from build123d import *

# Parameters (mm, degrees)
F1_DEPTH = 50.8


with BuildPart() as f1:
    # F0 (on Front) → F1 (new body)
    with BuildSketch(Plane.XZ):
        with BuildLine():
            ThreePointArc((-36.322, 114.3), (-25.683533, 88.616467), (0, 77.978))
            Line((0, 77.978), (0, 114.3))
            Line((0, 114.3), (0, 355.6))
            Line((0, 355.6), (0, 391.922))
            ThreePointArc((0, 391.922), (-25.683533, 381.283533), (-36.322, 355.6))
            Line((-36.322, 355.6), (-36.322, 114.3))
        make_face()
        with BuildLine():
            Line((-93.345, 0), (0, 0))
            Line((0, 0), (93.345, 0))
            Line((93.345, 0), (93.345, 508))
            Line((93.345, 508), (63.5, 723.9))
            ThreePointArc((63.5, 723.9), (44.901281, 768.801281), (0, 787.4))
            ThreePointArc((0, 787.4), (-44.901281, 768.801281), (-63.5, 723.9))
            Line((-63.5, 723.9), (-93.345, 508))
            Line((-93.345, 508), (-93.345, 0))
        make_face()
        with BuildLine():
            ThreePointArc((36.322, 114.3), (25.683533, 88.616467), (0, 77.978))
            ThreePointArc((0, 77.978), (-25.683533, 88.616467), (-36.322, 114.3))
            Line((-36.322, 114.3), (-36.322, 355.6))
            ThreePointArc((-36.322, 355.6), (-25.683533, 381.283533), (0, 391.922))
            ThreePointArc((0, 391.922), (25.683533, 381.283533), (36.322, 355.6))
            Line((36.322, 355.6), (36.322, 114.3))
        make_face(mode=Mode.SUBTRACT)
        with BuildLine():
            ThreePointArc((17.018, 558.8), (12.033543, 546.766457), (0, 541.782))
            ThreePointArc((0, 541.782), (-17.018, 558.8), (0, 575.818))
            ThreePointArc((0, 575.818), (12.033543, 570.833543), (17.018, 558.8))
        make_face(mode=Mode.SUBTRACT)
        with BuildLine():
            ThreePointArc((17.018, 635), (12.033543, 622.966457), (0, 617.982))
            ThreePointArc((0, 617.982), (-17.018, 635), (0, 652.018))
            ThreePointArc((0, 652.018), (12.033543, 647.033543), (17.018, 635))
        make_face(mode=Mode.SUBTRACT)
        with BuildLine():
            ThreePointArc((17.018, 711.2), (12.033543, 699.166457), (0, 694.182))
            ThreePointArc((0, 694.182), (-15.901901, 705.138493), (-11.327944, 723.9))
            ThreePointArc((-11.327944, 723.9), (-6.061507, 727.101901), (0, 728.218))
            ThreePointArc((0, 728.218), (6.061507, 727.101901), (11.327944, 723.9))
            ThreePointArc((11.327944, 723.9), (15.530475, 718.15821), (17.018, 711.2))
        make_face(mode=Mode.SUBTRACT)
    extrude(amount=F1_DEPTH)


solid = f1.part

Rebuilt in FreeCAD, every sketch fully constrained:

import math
import FreeCAD as App
import Part
import Sketcher

V = App.Vector
Q = App.Units.Quantity

doc = App.newDocument("Part")
body = doc.addObject("PartDesign::Body", "Body")

sketch1 = body.newObject("Sketcher::SketchObject", "Sketch")
sketch1.AttachmentSupport = (doc.getObject("XZ_Plane"), [""])
sketch1.MapMode = "FlatFace"
sketch1.addGeometry([
    Part.LineSegment(V(-93, 0, 0), V(93, 0, 0)),
    Part.LineSegment(V(93, 0, 0), V(93, 508, 0)),
    Part.LineSegment(V(93, 508, 0), V(64, 724, 0)),
    Part.ArcOfCircle(Part.Circle(V(0, 724, 0), V(0, 0, 1), 63), math.radians(0), math.radians(90)),
    Part.ArcOfCircle(Part.Circle(V(0, 724, 0), V(0, 0, 1), 63), math.radians(90), math.radians(180)),
    Part.LineSegment(V(-64, 724, 0), V(-93, 508, 0)),
    Part.LineSegment(V(-93, 508, 0), V(-93, 0, 0)),
    Part.LineSegment(V(36, 356, 0), V(36, 114, 0)),
    Part.ArcOfCircle(Part.Circle(V(0, 114, 0), V(0, 0, 1), 36), math.radians(-90), math.radians(0)),
    Part.ArcOfCircle(Part.Circle(V(0, 114, 0), V(0, 0, 1), 36), math.radians(180), math.radians(270)),
    Part.LineSegment(V(-36, 114, 0), V(-36, 356, 0)),
    Part.ArcOfCircle(Part.Circle(V(0, 356, 0), V(0, 0, 1), 36), math.radians(90), math.radians(180)),
    Part.ArcOfCircle(Part.Circle(V(0, 356, 0), V(0, 0, 1), 36), math.radians(0), math.radians(90)),
    Part.ArcOfCircle(Part.Circle(V(0, 559, 0), V(0, 0, 1), 17), math.radians(0), math.radians(90)),
    Part.ArcOfCircle(Part.Circle(V(0, 559, 0), V(0, 0, 1), 17), math.radians(-90), math.radians(0)),
    Part.ArcOfCircle(Part.Circle(V(0, 559, 0), V(0, 0, 1), 17), math.radians(90), math.radians(270)),
    Part.ArcOfCircle(Part.Circle(V(0, 635, 0), V(0, 0, 1), 17), math.radians(0), math.radians(90)),
    Part.ArcOfCircle(Part.Circle(V(0, 635, 0), V(0, 0, 1), 17), math.radians(-90), math.radians(0)),
    Part.ArcOfCircle(Part.Circle(V(0, 635, 0), V(0, 0, 1), 17), math.radians(90), math.radians(270)),
    Part.ArcOfCircle(Part.Circle(V(0, 711, 0), V(0, 0, 1), 17), math.radians(0), math.radians(48)),
    Part.ArcOfCircle(Part.Circle(V(0, 711, 0), V(0, 0, 1), 17), math.radians(-90), math.radians(0)),
    Part.ArcOfCircle(Part.Circle(V(0, 711, 0), V(0, 0, 1), 17), math.radians(132), math.radians(270)),
    Part.ArcOfCircle(Part.Circle(V(0, 711, 0), V(0, 0, 1), 17), math.radians(90), math.radians(132)),
    Part.ArcOfCircle(Part.Circle(V(0, 711, 0), V(0, 0, 1), 17), math.radians(48), math.radians(90)),
], False)
sketch1.addConstraint([
    Sketcher.Constraint("Coincident", 0, 2, 1, 1),
    Sketcher.Constraint("Coincident", 1, 2, 2, 1),
    Sketcher.Constraint("Coincident", 2, 2, 3, 1),
    Sketcher.Constraint("Tangent", 3, 2, 4, 1),
    Sketcher.Constraint("Coincident", 4, 2, 5, 1),
    Sketcher.Constraint("Coincident", 5, 2, 6, 1),
    Sketcher.Constraint("Coincident", 6, 2, 0, 1),
    Sketcher.Constraint("Tangent", 7, 2, 8, 2),
    Sketcher.Constraint("Tangent", 8, 1, 9, 2),
    Sketcher.Constraint("Tangent", 9, 1, 10, 1),
    Sketcher.Constraint("Tangent", 10, 2, 11, 2),
    Sketcher.Constraint("Tangent", 11, 1, 12, 2),
    Sketcher.Constraint("Tangent", 12, 1, 7, 1),
    Sketcher.Constraint("Tangent", 13, 1, 14, 2),
    Sketcher.Constraint("Tangent", 14, 1, 15, 2),
    Sketcher.Constraint("Tangent", 15, 1, 13, 2),
    Sketcher.Constraint("Tangent", 16, 1, 17, 2),
    Sketcher.Constraint("Tangent", 17, 1, 18, 2),
    Sketcher.Constraint("Tangent", 18, 1, 16, 2),
    Sketcher.Constraint("Tangent", 19, 1, 20, 2),
    Sketcher.Constraint("Tangent", 20, 1, 21, 2),
    Sketcher.Constraint("Tangent", 21, 1, 22, 2),
    Sketcher.Constraint("Tangent", 22, 1, 23, 2),
    Sketcher.Constraint("Tangent", 23, 1, 19, 2),
    Sketcher.Constraint("Horizontal", 0),
    Sketcher.Constraint("Vertical", 1),
    Sketcher.Constraint("Vertical", 6),
    Sketcher.Constraint("Vertical", 7),
    Sketcher.Constraint("Vertical", 10),
    Sketcher.Constraint("Coincident", 21, 3, 19, 3),
    Sketcher.Constraint("Equal", 3, 4),
    Sketcher.Constraint("Equal", 8, 9),
    Sketcher.Constraint("Equal", 9, 11),
    Sketcher.Constraint("Equal", 15, 16),
    Sketcher.Constraint("Equal", 18, 20),
    Sketcher.Constraint("Symmetric", 0, 2, 6, 2, -1, 1),
    Sketcher.Constraint("Symmetric", 2, 2, 4, 2, -2),
    Sketcher.Constraint("Symmetric", 21, 1, 23, 1, -2),
    Sketcher.Constraint("PointOnObject", 8, 3, -2),
    Sketcher.Constraint("PointOnObject", 13, 3, -2),
    Sketcher.Constraint("PointOnObject", 16, 3, -2),
    Sketcher.Constraint("PointOnObject", 3, 2, -2),
    Sketcher.Constraint("PointOnObject", 8, 1, -2),
    Sketcher.Constraint("PointOnObject", 11, 1, -2),
    Sketcher.Constraint("PointOnObject", 14, 1, -2),
    Sketcher.Constraint("PointOnObject", 15, 1, -2),
    Sketcher.Constraint("PointOnObject", 17, 1, -2),
    Sketcher.Constraint("PointOnObject", 18, 1, -2),
    Sketcher.Constraint("PointOnObject", 20, 1, -2),
    Sketcher.Constraint("PointOnObject", 22, 1, -2),
    Sketcher.Constraint("Horizontal", 4, 3, 2, 2),
    Sketcher.Constraint("Horizontal", 1, 2, 5, 2),
    Sketcher.Constraint("Horizontal", 15, 3, 13, 1),
    Sketcher.Constraint("Horizontal", 18, 3, 16, 1),
    Sketcher.Constraint("Horizontal", 23, 3, 19, 1),
    Sketcher.Constraint("Horizontal", 4, 2, 21, 1),
    Sketcher.Constraint("Radius", 3, Q("2.4999999 in")),
    Sketcher.Constraint("DistanceY", 1, 1, 1, 2, Q("20 in")),
    Sketcher.Constraint("Radius", 8, Q("1.4299999 in")),
    Sketcher.Constraint("Radius", 13, Q("0.67 in")),
    Sketcher.Constraint("DistanceY", 7, 2, 7, 1, Q("9.5 in")),
    Sketcher.Constraint("DistanceY", -1, 1, 11, 3, Q("14.0000001 in")),
    Sketcher.Constraint("DistanceY", -1, 1, 13, 3, Q("22 in")),
    Sketcher.Constraint("DistanceY", -1, 1, 16, 3, Q("25 in")),
    Sketcher.Constraint("DistanceY", -1, 1, 19, 3, Q("28.0000001 in")),
    Sketcher.Constraint("DistanceY", -1, 1, 3, 2, Q("31 in")),
    Sketcher.Constraint("DistanceX", 0, 1, 0, 2, Q("7.35 in")),
])
pad1 = body.newObject("PartDesign::Pad", "Pad")
pad1.Profile = sketch1
pad1.Length = Q("2 in")

doc.recompute()
